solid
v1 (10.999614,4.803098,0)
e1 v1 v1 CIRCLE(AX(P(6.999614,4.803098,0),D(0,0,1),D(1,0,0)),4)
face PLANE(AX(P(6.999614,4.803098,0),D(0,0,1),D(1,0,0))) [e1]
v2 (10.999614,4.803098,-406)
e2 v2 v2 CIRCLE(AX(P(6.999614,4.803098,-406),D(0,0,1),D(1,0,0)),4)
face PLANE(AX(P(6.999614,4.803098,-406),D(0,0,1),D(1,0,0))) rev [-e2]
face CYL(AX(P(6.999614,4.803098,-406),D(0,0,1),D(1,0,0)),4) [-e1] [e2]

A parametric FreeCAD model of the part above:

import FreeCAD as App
import Part
import Sketcher
from FreeCAD import Vector
Q = App.Units.Quantity

doc = App.newDocument("Part")
body = doc.addObject("PartDesign::Body", "Body")

# Sketch on XY plane
sketch1 = body.newObject("Sketcher::SketchObject", "Sketch")
sketch1.AttachmentSupport = (doc.getObject("XY_Plane"), [""])
sketch1.MapMode = "FlatFace"
sketch1.addGeometry(Part.Circle(Vector(7, 4.8, 0), Vector(0, 0, 1), 4), False)
sketch1.addConstraint([
    Sketcher.Constraint("Diameter", 0, Q("8 mm")),
    Sketcher.Constraint("DistanceX", -1, 1, 0, 3, Q("6.999614 mm")),
    Sketcher.Constraint("DistanceY", -1, 1, 0, 3, Q("4.803098 mm")),
])
pad1 = body.newObject("PartDesign::Pad", "Pad")
pad1.Profile = sketch1
pad1.Length = 406
pad1.Reversed = True

doc.recompute()
